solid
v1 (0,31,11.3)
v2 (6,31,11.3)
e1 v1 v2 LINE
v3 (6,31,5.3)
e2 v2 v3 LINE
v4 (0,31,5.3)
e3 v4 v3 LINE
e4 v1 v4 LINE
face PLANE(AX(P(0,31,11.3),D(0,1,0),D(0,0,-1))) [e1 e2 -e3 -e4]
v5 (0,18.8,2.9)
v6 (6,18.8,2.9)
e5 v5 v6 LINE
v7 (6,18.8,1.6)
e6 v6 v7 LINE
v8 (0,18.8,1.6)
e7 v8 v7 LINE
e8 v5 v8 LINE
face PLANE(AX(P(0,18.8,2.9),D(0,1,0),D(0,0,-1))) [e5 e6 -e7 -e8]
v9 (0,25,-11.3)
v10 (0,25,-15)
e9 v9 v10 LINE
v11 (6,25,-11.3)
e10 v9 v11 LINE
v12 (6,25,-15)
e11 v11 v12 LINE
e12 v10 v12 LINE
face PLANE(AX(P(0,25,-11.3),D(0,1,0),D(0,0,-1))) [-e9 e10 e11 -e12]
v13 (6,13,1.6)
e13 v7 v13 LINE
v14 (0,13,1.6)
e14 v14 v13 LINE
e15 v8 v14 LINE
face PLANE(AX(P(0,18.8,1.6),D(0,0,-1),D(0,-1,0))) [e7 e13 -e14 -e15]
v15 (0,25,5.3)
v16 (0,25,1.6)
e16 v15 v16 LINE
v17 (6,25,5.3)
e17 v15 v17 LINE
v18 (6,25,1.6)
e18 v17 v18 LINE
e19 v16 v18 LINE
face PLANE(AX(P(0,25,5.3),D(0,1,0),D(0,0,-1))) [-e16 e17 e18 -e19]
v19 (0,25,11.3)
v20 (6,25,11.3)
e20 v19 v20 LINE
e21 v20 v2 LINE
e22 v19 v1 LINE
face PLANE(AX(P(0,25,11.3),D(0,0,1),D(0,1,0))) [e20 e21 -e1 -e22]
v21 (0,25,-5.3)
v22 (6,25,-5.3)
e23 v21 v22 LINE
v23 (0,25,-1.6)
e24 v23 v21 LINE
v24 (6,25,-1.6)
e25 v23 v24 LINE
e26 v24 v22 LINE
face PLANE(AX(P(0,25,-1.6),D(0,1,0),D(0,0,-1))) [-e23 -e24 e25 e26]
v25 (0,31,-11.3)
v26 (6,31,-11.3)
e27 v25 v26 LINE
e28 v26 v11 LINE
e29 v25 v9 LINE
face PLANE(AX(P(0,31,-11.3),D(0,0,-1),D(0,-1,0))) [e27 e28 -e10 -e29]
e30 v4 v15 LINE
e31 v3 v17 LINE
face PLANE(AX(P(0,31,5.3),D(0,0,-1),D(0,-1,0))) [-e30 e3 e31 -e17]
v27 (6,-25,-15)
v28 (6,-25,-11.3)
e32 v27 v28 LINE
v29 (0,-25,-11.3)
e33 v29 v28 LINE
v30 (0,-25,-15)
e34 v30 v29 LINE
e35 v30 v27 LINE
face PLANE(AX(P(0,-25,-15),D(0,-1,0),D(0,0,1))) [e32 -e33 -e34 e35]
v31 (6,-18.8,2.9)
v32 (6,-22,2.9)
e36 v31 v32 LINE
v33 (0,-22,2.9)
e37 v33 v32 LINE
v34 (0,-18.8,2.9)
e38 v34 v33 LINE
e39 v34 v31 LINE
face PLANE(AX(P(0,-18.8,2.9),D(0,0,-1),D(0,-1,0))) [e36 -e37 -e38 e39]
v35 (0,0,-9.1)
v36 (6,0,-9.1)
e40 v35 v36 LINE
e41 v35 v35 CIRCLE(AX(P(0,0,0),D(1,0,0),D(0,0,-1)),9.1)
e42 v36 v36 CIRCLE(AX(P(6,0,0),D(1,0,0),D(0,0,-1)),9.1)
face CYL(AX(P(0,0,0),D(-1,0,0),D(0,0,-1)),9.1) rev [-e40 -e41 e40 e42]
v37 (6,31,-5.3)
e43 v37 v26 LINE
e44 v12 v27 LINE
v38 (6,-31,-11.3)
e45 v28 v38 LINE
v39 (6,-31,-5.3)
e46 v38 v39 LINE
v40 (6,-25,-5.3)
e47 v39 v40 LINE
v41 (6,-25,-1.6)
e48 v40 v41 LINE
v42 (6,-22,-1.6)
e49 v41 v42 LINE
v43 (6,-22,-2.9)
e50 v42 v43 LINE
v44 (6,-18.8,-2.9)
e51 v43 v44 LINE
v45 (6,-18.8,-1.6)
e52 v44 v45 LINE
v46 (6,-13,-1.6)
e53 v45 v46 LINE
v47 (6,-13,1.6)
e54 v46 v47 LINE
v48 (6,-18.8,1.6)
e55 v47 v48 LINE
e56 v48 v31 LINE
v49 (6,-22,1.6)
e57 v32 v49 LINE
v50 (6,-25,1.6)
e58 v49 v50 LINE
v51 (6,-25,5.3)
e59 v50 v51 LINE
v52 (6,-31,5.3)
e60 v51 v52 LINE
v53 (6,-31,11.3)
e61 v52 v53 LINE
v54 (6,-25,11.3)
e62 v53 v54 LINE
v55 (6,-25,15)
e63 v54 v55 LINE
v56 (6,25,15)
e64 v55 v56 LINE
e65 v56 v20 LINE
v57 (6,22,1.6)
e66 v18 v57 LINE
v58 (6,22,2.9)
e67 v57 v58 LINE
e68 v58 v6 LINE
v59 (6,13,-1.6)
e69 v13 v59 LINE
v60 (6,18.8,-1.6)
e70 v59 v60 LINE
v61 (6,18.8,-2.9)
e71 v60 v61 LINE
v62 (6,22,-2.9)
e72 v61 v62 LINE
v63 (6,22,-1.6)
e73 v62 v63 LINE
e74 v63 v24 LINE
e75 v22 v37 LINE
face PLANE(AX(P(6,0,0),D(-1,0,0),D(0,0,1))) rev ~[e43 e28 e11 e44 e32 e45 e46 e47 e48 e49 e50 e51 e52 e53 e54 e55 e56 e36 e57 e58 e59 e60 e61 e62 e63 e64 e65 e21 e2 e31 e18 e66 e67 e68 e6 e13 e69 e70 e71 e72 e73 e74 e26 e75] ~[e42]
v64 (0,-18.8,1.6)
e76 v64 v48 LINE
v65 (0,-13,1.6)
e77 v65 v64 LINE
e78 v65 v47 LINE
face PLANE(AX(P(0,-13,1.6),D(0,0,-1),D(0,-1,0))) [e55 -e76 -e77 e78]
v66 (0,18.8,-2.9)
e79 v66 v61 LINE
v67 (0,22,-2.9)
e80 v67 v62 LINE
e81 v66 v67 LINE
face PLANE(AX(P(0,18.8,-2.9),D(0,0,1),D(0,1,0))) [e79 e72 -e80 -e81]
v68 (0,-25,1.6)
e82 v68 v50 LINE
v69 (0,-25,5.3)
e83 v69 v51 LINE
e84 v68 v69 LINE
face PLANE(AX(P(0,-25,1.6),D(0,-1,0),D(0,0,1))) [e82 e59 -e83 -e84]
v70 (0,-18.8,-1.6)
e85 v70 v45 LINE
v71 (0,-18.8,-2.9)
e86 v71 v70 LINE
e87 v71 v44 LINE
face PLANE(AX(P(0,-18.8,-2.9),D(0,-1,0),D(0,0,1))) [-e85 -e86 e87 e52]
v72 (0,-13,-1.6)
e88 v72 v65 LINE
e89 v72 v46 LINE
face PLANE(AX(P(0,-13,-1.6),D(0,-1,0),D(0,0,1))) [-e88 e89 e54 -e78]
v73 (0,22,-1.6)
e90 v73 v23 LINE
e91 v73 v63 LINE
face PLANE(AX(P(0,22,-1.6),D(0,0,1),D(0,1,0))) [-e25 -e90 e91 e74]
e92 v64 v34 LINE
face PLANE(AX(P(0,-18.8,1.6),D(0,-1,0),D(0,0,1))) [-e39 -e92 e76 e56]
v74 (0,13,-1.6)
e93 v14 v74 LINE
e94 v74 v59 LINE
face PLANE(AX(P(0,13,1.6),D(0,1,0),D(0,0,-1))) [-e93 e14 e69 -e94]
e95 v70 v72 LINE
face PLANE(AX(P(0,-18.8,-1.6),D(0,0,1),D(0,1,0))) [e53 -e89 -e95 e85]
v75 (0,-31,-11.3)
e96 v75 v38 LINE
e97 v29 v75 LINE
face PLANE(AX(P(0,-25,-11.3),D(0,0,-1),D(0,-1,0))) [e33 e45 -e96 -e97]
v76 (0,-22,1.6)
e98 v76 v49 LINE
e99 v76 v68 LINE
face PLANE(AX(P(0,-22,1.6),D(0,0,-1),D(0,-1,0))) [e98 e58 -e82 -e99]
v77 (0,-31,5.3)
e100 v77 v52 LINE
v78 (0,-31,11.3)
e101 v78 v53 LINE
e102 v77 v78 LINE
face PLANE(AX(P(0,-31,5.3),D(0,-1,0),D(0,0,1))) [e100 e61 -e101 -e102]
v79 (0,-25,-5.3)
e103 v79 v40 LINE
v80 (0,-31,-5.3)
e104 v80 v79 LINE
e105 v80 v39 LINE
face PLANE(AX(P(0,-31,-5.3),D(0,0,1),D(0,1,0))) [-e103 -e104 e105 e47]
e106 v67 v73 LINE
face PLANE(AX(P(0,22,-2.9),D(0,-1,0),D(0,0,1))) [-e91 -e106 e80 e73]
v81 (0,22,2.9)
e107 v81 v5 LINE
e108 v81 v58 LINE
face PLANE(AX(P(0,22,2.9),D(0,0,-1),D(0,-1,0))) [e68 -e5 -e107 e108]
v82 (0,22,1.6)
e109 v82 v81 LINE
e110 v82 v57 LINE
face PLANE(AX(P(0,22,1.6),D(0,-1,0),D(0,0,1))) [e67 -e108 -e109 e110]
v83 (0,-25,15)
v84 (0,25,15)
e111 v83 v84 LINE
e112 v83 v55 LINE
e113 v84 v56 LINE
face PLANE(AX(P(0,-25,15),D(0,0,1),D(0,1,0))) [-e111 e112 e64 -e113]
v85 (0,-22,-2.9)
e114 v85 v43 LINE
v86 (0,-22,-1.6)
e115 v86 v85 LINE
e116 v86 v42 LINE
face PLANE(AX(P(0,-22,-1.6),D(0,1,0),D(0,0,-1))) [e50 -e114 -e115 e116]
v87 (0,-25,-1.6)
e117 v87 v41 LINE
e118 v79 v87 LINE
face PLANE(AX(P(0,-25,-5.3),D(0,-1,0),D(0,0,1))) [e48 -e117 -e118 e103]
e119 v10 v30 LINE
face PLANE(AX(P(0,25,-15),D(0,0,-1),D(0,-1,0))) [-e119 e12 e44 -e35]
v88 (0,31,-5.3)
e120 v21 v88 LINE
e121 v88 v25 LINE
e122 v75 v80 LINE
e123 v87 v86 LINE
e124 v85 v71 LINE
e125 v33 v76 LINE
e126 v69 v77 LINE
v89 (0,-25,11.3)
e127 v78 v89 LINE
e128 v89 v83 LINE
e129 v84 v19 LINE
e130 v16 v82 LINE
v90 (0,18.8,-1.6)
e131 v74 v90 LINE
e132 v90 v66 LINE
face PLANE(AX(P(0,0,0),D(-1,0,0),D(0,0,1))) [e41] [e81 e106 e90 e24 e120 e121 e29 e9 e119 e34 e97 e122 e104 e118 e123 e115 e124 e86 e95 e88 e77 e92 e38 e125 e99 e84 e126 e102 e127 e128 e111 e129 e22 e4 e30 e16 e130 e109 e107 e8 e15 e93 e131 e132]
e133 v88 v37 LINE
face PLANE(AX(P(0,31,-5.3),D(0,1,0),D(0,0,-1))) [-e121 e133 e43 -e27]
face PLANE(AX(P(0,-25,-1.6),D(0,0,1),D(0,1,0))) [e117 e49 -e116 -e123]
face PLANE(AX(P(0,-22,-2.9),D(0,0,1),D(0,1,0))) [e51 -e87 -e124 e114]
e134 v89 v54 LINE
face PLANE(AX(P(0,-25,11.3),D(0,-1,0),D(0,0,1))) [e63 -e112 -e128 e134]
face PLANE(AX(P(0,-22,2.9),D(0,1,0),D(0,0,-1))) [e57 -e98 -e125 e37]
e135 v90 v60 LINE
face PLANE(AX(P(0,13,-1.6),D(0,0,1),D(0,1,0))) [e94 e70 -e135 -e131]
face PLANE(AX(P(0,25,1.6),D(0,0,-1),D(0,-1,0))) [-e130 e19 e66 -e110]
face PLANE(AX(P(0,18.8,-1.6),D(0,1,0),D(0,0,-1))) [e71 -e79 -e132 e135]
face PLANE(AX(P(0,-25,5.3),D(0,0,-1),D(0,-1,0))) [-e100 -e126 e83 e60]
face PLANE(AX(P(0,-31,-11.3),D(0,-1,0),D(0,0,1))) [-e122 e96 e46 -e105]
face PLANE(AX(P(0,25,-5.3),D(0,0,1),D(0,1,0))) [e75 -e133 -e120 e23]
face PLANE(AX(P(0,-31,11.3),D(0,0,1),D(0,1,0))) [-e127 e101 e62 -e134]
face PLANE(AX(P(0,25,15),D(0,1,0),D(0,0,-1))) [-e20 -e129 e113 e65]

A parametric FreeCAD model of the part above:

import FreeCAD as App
import Part
import Sketcher

V = App.Vector


def add_polygon(sketch, points):
    """Adds a closed chain of lines whose ends are joined by coincident constraints."""
    first, n = sketch.GeometryCount, len(points)
    for a, b in zip(points, points[1:] + points[:1]):
        sketch.addGeometry(Part.LineSegment(App.Vector(*a, 0), App.Vector(*b, 0)), False)
    for i in range(n):
        sketch.addConstraint(Sketcher.Constraint("Coincident", first + i, 2, first + (i + 1) % n, 1))

doc = App.newDocument("Part")
body = doc.addObject("PartDesign::Body", "Body")

# Sketch on YZ plane
sketch1 = body.newObject("Sketcher::SketchObject", "Sketch")
sketch1.AttachmentSupport = (doc.getObject("YZ_Plane"), [""])
sketch1.MapMode = "FlatFace"
add_polygon(sketch1, [(25, 15), (-25, 15), (-25, 11.3), (-31, 11.3), (-31, 5.3), (-25, 5.3), (-25, 1.6), (-22, 1.6), (-22, 2.9), (-18.8, 2.9), (-18.8, 1.6), (-13, 1.6), (-13, -1.6), (-18.8, -1.6), (-18.8, -2.9), (-22, -2.9), (-22, -1.6), (-25, -1.6), (-25, -5.3), (-31, -5.3), (-31, -11.3), (-25, -11.3), (-25, -15), (25, -15), (25, -11.3), (31, -11.3), (31, -5.3), (25, -5.3), (25, -1.6), (22, -1.6), (22, -2.9), (18.8, -2.9), (18.8, -1.6), (13, -1.6), (13, 1.6), (18.8, 1.6), (18.8, 2.9), (22, 2.9), (22, 1.6), (25, 1.6), (25, 5.3), (31, 5.3), (31, 11.3), (25, 11.3)])  # lines 0-43
sketch1.addGeometry(Part.Circle(V(0, 0, 0), V(0, 0, 1), 9.1), False)  # 44
sketch1.addConstraint(Sketcher.Constraint("Horizontal", 0))
sketch1.addConstraint(Sketcher.Constraint("Vertical", 1))
sketch1.addConstraint(Sketcher.Constraint("Horizontal", 2))
sketch1.addConstraint(Sketcher.Constraint("Vertical", 3))
sketch1.addConstraint(Sketcher.Constraint("Horizontal", 4))
sketch1.addConstraint(Sketcher.Constraint("Vertical", 5))
sketch1.addConstraint(Sketcher.Constraint("Horizontal", 6))
sketch1.addConstraint(Sketcher.Constraint("Vertical", 7))
sketch1.addConstraint(Sketcher.Constraint("Horizontal", 8))
sketch1.addConstraint(Sketcher.Constraint("Vertical", 9))
sketch1.addConstraint(Sketcher.Constraint("Horizontal", 10))
sketch1.addConstraint(Sketcher.Constraint("Vertical", 11))
sketch1.addConstraint(Sketcher.Constraint("Horizontal", 12))
sketch1.addConstraint(Sketcher.Constraint("Vertical", 13))
sketch1.addConstraint(Sketcher.Constraint("Horizontal", 14))
sketch1.addConstraint(Sketcher.Constraint("Vertical", 15))
sketch1.addConstraint(Sketcher.Constraint("Horizontal", 16))
sketch1.addConstraint(Sketcher.Constraint("Vertical", 17))
sketch1.addConstraint(Sketcher.Constraint("Horizontal", 18))
sketch1.addConstraint(Sketcher.Constraint("Vertical", 19))
sketch1.addConstraint(Sketcher.Constraint("Horizontal", 20))
sketch1.addConstraint(Sketcher.Constraint("Vertical", 21))
sketch1.addConstraint(Sketcher.Constraint("Horizontal", 22))
sketch1.addConstraint(Sketcher.Constraint("Vertical", 23))
sketch1.addConstraint(Sketcher.Constraint("Horizontal", 24))
sketch1.addConstraint(Sketcher.Constraint("Vertical", 25))
sketch1.addConstraint(Sketcher.Constraint("Horizontal", 26))
sketch1.addConstraint(Sketcher.Constraint("Vertical", 27))
sketch1.addConstraint(Sketcher.Constraint("Horizontal", 28))
sketch1.addConstraint(Sketcher.Constraint("Vertical", 29))
sketch1.addConstraint(Sketcher.Constraint("Horizontal", 30))
sketch1.addConstraint(Sketcher.Constraint("Vertical", 31))
sketch1.addConstraint(Sketcher.Constraint("Horizontal", 32))
sketch1.addConstraint(Sketcher.Constraint("Vertical", 33))
sketch1.addConstraint(Sketcher.Constraint("Horizontal", 34))
sketch1.addConstraint(Sketcher.Constraint("Vertical", 35))
sketch1.addConstraint(Sketcher.Constraint("Horizontal", 36))
sketch1.addConstraint(Sketcher.Constraint("Vertical", 37))
sketch1.addConstraint(Sketcher.Constraint("Horizontal", 38))
sketch1.addConstraint(Sketcher.Constraint("Vertical", 39))
sketch1.addConstraint(Sketcher.Constraint("Horizontal", 40))
sketch1.addConstraint(Sketcher.Constraint("Vertical", 41))
sketch1.addConstraint(Sketcher.Constraint("Horizontal", 42))
sketch1.addConstraint(Sketcher.Constraint("Vertical", 43))
sketch1.addConstraint(Sketcher.Constraint("Coincident", 44, 3, -1, 1))
sketch1.addConstraint(Sketcher.Constraint("Symmetric", 0, 2, 22, 2, -1, 1))
sketch1.addConstraint(Sketcher.Constraint("Symmetric", 2, 2, 24, 2, -1, 1))
sketch1.addConstraint(Sketcher.Constraint("Symmetric", 4, 2, 26, 2, -1, 1))
sketch1.addConstraint(Sketcher.Constraint("Symmetric", 6, 2, 28, 2, -1, 1))
sketch1.addConstraint(Sketcher.Constraint("Symmetric", 8, 2, 30, 2, -1, 1))
sketch1.addConstraint(Sketcher.Constraint("Symmetric", 10, 2, 32, 2, -1, 1))
sketch1.addConstraint(Sketcher.Constraint("Symmetric", 12, 2, 34, 2, -1, 1))
sketch1.addConstraint(Sketcher.Constraint("Symmetric", 14, 2, 36, 2, -1, 1))
sketch1.addConstraint(Sketcher.Constraint("Symmetric", 16, 2, 38, 2, -1, 1))
sketch1.addConstraint(Sketcher.Constraint("Symmetric", 18, 2, 40, 2, -1, 1))
sketch1.addConstraint(Sketcher.Constraint("Symmetric", 20, 2, 42, 2, -1, 1))
sketch1.addConstraint(Sketcher.Constraint("Symmetric", 20, 2, 23, 2, -2))
sketch1.addConstraint(Sketcher.Constraint("Symmetric", 18, 2, 25, 2, -2))
sketch1.addConstraint(Sketcher.Constraint("Symmetric", 16, 2, 27, 2, -2))
sketch1.addConstraint(Sketcher.Constraint("Symmetric", 14, 2, 29, 2, -2))
sketch1.addConstraint(Sketcher.Constraint("Symmetric", 12, 2, 31, 2, -2))
sketch1.addConstraint(Sketcher.Constraint("Horizontal", 6, 2, 9, 2))
sketch1.addConstraint(Sketcher.Constraint("Vertical", 1, 2, 4, 2))
sketch1.addConstraint(Sketcher.Constraint("Equal", 42, 3))
sketch1.addConstraint(Sketcher.Constraint("Equal", 1, 5))
sketch1.addConstraint(Sketcher.Constraint("Equal", 36, 11))
sketch1.addConstraint(Sketcher.Constraint("Diameter", 44, 18.2))
sketch1.addConstraint(Sketcher.Constraint("DistanceX", 0, 2, 0, 1, 50.0))
sketch1.addConstraint(Sketcher.Constraint("DistanceX", 2, 2, 2, 1, 6.0))
sketch1.addConstraint(Sketcher.Constraint("DistanceX", 6, 1, 6, 2, 3.0))
sketch1.addConstraint(Sketcher.Constraint("DistanceX", 8, 1, 8, 2, 3.2))
sketch1.addConstraint(Sketcher.Constraint("DistanceX", 10, 1, 10, 2, 5.8))
sketch1.addConstraint(Sketcher.Constraint("DistanceY", 1, 2, 1, 1, 3.7))
sketch1.addConstraint(Sketcher.Constraint("DistanceY", 7, 1, 7, 2, 1.3))
pad1 = body.newObject("PartDesign::Pad", "Pad")
pad1.Profile = sketch1
pad1.Length = 6

doc.recompute()
